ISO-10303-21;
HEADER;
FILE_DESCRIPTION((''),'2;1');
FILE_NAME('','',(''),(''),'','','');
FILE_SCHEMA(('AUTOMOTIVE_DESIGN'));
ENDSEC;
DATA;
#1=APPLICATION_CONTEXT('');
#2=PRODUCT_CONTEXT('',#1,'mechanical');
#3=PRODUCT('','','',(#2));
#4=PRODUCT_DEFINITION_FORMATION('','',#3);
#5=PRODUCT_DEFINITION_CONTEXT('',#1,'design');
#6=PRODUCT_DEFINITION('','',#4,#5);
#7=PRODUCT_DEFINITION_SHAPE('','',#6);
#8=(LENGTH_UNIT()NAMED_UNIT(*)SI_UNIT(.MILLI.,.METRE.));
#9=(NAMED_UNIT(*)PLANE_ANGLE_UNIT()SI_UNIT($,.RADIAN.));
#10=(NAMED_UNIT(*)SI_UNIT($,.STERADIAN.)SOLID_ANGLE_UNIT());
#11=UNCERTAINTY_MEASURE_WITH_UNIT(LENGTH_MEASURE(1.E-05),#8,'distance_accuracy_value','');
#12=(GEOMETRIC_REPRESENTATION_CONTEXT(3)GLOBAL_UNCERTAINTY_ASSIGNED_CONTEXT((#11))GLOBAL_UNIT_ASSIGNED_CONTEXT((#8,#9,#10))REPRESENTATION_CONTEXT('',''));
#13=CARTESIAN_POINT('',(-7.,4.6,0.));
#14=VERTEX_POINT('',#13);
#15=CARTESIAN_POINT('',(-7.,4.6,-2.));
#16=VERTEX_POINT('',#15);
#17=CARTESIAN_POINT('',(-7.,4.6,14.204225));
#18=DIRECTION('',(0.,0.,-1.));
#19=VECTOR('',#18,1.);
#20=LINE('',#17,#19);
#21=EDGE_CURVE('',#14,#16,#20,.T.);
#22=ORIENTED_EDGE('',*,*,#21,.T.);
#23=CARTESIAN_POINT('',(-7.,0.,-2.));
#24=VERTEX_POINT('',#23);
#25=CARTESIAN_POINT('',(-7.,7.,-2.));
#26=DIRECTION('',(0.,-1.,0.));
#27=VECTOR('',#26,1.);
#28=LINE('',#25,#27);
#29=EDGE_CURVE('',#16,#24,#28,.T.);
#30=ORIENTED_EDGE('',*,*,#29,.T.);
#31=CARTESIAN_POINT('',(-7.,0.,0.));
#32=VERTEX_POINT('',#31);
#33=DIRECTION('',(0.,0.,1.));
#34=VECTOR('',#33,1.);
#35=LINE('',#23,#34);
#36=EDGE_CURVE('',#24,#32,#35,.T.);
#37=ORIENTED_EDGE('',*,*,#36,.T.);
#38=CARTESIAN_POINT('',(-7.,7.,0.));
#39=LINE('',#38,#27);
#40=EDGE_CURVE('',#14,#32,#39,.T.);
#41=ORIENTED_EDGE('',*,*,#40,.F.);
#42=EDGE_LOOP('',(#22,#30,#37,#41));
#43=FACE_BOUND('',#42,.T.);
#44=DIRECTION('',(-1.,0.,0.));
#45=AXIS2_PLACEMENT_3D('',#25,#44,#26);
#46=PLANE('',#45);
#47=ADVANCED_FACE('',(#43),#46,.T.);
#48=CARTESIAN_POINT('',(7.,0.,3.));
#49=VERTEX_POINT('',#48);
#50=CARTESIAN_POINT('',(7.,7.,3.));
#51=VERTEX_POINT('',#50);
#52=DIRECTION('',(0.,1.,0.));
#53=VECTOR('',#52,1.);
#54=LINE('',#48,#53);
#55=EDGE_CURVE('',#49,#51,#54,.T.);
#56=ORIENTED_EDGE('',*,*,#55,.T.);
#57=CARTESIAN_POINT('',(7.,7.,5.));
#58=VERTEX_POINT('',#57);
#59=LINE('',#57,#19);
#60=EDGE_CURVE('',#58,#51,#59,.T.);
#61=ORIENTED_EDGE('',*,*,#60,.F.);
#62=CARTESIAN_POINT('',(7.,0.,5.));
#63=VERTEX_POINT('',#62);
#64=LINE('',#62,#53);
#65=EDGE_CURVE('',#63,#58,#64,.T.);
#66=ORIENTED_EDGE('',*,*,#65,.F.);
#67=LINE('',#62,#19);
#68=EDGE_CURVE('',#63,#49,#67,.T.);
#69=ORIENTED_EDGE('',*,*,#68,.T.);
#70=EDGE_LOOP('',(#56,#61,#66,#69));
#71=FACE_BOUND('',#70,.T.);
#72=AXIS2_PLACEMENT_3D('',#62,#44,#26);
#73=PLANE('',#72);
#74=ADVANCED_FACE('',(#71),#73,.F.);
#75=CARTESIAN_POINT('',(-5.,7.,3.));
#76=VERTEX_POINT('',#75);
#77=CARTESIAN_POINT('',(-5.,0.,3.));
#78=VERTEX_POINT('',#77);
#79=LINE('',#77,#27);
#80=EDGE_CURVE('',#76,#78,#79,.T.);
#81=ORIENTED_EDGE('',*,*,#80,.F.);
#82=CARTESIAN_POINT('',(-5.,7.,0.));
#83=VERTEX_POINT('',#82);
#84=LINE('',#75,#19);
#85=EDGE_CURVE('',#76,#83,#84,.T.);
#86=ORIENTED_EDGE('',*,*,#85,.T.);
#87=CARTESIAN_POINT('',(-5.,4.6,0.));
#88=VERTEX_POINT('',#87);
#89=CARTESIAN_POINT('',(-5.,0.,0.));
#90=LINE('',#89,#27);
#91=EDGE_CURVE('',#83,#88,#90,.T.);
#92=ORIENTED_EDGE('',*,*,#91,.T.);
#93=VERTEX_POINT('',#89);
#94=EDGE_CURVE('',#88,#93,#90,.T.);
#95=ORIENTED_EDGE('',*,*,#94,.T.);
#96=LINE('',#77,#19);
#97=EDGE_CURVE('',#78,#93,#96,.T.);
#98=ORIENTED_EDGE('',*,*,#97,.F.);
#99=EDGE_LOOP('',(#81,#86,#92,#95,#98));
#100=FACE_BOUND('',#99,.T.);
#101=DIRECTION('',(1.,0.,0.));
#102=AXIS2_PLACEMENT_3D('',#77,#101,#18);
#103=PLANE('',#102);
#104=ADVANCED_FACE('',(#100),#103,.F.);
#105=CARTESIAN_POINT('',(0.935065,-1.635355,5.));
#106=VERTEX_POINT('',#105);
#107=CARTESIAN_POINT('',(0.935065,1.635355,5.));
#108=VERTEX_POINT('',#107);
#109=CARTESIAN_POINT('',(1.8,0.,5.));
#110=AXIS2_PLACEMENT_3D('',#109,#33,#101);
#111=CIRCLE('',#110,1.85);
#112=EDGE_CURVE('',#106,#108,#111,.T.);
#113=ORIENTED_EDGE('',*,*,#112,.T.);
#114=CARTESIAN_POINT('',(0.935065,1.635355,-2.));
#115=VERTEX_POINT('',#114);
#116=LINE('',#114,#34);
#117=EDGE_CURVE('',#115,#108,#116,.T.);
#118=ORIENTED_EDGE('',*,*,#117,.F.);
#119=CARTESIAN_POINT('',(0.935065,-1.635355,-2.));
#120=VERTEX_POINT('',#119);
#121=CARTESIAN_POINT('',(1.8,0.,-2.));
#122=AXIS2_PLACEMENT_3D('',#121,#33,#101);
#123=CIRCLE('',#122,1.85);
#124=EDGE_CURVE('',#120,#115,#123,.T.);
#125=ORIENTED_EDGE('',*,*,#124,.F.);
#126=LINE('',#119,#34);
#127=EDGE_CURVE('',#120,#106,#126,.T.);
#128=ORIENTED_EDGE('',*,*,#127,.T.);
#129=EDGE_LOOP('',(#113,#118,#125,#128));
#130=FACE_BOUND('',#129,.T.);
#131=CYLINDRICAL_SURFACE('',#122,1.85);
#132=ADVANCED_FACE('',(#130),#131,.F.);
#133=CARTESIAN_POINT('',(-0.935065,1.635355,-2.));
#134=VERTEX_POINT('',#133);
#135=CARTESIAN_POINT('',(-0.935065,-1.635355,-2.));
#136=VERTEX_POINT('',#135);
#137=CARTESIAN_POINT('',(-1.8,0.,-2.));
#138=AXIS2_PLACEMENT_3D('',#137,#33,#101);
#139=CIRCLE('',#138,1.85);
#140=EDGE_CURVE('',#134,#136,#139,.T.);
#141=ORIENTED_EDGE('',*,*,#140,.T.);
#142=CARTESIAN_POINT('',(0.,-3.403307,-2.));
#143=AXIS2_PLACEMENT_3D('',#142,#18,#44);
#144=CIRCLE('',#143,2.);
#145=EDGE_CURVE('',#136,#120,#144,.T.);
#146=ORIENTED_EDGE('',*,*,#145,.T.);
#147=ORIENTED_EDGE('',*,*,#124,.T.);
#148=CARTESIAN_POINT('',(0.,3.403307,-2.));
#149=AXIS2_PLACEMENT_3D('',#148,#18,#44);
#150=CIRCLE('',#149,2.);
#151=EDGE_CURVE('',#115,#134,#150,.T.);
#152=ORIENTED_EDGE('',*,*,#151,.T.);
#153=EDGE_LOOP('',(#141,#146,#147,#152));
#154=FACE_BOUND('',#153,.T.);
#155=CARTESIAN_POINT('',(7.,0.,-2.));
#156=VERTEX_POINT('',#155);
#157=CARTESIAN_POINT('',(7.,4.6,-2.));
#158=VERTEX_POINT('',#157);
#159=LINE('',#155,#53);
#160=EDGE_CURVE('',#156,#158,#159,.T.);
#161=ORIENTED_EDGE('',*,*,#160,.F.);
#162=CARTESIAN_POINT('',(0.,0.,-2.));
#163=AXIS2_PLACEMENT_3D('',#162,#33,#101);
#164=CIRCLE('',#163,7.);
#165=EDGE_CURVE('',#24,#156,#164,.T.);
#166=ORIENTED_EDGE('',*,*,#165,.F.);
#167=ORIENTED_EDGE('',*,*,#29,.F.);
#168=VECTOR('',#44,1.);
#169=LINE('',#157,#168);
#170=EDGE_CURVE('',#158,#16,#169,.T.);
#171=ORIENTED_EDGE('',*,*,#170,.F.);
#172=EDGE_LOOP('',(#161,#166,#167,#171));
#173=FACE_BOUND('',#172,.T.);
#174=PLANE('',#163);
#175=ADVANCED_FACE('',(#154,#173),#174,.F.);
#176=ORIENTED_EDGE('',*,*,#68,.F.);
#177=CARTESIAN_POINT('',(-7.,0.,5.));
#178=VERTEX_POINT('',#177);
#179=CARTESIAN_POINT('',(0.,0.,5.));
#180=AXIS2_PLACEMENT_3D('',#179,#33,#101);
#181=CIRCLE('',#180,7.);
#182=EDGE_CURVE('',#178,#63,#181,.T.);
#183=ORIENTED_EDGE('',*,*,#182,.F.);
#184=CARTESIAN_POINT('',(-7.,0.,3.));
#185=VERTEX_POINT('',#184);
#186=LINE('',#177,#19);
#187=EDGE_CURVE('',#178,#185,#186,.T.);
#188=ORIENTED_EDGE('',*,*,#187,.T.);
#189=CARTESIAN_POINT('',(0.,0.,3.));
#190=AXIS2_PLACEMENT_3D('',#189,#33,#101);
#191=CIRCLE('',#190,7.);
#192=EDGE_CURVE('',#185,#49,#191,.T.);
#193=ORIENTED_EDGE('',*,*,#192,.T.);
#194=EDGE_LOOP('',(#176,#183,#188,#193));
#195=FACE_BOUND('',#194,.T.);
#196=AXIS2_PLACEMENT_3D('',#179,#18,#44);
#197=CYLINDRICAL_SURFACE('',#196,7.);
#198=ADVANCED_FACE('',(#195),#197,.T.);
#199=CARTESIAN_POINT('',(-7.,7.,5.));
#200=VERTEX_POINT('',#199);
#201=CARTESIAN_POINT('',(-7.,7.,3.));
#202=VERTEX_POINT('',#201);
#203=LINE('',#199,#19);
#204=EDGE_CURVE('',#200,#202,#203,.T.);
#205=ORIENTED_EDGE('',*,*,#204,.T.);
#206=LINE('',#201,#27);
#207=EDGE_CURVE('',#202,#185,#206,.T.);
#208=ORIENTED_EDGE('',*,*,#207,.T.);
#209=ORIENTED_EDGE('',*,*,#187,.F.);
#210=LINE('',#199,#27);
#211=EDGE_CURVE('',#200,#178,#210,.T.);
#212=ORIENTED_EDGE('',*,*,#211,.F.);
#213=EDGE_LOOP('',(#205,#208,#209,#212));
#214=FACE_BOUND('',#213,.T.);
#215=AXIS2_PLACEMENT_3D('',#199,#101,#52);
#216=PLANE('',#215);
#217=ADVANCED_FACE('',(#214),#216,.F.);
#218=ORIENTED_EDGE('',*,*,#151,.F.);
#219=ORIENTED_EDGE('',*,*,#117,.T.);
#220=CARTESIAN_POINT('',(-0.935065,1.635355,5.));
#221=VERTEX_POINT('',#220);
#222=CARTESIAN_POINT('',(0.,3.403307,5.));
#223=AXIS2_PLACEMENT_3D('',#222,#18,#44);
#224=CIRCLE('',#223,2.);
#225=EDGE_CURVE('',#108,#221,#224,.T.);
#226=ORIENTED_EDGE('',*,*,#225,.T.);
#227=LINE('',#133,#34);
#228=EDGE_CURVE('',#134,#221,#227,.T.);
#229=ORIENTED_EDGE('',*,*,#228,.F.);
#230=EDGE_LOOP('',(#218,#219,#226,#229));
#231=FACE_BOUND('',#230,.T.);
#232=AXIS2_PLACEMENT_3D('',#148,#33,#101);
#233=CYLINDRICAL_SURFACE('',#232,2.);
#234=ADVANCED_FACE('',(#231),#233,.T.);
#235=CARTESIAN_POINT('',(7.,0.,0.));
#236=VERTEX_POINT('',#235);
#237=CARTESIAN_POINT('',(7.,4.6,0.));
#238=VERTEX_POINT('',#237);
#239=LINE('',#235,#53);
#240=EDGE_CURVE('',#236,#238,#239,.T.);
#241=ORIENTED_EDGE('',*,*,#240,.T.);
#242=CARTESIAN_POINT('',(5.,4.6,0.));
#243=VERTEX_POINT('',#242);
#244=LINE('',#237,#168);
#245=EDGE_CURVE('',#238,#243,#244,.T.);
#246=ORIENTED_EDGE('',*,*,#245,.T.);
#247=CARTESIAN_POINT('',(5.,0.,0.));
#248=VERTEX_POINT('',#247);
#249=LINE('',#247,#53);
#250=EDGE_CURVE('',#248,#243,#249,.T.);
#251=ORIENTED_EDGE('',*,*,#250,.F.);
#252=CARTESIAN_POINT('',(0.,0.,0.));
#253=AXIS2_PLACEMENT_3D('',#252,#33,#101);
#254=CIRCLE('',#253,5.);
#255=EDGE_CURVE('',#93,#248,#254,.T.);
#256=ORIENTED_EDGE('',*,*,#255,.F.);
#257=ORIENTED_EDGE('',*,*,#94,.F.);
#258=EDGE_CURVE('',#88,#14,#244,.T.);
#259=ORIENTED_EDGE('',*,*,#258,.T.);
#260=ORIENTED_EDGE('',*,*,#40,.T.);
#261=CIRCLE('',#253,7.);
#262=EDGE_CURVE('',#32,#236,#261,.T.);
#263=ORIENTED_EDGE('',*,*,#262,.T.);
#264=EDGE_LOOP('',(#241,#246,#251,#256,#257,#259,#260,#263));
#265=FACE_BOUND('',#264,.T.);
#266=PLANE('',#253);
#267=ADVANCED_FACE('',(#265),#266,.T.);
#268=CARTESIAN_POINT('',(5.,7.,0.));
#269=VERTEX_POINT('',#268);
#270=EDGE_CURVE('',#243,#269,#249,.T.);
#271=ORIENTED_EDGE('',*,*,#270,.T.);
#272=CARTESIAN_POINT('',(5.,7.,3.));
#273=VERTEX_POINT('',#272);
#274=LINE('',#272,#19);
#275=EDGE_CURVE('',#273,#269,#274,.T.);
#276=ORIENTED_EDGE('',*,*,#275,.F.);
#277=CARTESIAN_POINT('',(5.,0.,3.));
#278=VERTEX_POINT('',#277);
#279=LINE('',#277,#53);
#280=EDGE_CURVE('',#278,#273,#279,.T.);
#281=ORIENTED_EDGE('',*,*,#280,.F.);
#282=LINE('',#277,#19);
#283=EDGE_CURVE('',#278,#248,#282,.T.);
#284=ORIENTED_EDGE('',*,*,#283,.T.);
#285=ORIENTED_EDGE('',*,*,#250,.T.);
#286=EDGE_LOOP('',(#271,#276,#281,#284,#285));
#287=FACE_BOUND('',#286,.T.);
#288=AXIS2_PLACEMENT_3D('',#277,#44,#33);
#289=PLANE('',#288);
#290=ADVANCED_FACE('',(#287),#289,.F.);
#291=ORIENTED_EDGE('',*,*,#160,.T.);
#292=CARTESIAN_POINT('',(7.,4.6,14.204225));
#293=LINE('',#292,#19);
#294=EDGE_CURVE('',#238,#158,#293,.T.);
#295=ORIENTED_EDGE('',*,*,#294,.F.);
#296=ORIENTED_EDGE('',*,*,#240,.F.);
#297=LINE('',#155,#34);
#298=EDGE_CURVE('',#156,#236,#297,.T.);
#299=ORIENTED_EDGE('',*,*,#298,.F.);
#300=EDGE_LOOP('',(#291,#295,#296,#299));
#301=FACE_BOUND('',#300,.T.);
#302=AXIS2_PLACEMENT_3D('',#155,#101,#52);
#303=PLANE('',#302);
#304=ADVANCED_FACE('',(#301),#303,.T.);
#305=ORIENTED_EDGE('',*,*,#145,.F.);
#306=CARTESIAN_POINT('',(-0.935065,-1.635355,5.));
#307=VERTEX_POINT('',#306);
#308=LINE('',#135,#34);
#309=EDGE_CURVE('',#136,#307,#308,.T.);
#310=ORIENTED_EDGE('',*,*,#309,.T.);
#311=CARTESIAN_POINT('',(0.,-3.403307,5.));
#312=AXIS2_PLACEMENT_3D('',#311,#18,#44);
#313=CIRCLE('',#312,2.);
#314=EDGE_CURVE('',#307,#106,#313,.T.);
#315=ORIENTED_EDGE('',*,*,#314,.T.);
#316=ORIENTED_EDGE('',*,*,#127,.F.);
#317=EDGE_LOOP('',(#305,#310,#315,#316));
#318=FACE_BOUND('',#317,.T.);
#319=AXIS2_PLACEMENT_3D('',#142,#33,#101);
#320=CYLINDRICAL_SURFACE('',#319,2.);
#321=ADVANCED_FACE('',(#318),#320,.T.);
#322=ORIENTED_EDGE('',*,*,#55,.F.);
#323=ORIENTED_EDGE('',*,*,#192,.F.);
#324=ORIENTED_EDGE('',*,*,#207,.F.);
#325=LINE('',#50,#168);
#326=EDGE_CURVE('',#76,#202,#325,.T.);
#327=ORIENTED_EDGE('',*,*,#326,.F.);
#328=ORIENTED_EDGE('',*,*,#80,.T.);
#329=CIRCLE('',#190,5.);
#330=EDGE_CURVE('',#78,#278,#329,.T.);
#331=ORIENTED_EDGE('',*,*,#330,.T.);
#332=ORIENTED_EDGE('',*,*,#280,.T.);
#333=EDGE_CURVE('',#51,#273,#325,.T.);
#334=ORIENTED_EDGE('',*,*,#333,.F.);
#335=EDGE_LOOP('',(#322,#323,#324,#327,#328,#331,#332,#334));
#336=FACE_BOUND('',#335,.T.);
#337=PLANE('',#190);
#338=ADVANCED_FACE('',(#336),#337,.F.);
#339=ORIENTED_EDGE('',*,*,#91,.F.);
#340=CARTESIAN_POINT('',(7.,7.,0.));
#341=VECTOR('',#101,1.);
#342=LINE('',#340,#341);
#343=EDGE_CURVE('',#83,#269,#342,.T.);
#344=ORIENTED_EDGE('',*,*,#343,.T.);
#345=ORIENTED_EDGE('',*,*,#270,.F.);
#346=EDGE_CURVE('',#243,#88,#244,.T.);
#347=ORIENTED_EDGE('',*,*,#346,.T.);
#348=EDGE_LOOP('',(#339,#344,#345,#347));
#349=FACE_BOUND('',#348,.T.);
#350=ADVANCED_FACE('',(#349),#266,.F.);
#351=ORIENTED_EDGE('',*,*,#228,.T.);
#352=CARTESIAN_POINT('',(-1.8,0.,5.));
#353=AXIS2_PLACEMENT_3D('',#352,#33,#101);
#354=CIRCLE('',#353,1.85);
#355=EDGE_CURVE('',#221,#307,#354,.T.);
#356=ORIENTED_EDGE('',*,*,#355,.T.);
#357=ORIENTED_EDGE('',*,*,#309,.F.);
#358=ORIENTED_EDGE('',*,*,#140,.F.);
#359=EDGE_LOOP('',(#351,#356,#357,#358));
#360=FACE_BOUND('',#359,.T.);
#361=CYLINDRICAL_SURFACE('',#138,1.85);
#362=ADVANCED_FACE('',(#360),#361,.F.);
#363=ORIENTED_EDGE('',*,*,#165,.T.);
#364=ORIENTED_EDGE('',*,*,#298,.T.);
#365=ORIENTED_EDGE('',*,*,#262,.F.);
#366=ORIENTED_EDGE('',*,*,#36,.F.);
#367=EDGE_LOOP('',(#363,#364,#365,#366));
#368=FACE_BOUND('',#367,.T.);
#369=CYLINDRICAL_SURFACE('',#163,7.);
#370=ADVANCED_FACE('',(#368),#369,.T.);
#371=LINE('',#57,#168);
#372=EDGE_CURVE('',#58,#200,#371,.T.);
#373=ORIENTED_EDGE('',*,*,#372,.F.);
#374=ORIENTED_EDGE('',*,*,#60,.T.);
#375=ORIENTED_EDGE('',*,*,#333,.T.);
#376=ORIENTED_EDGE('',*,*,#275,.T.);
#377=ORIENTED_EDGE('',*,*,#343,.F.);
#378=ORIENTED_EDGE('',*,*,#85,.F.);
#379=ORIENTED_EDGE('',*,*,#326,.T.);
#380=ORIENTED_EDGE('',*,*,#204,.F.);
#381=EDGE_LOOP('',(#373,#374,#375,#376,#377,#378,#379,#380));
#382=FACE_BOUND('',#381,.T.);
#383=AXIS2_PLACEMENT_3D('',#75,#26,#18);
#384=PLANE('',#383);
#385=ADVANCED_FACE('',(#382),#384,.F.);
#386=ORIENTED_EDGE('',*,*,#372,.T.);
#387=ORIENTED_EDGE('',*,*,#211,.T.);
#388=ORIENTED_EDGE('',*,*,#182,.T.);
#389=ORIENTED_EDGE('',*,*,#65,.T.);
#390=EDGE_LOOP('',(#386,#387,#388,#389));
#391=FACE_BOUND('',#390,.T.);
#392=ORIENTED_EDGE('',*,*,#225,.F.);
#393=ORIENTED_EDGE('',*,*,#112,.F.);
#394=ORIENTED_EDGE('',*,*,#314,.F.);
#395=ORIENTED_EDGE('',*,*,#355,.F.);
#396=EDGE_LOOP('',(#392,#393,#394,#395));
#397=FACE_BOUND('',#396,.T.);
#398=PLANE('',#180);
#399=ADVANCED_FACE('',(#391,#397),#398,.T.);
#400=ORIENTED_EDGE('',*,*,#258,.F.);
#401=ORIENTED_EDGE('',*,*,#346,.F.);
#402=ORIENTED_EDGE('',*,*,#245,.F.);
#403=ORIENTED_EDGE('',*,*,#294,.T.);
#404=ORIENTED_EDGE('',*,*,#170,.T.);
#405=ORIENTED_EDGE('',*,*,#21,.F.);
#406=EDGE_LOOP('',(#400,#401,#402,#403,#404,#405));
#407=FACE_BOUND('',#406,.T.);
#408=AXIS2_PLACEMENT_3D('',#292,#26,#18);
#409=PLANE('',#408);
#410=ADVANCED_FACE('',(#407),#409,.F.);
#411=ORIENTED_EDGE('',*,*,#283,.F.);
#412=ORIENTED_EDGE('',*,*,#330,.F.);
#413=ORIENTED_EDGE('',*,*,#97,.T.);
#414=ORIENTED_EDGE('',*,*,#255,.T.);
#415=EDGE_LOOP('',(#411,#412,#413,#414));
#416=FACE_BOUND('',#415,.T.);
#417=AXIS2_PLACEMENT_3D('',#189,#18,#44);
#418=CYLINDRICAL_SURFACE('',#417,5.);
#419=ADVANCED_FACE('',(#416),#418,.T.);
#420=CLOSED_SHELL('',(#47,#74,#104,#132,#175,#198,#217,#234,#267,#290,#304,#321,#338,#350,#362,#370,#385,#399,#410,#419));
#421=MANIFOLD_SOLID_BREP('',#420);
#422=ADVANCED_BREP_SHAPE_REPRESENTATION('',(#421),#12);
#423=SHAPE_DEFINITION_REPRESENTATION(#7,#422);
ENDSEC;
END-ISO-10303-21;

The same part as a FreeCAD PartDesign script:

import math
import FreeCAD as App
import Part
import Sketcher


def add_polygon(sketch, points):
    """Adds a closed chain of lines whose ends are joined by coincident constraints."""
    first, n = sketch.GeometryCount, len(points)
    for a, b in zip(points, points[1:] + points[:1]):
        sketch.addGeometry(Part.LineSegment(App.Vector(*a, 0), App.Vector(*b, 0)), False)
    for i in range(n):
        sketch.addConstraint(Sketcher.Constraint("Coincident", first + i, 2, first + (i + 1) % n, 1))

doc = App.newDocument("Part")
body = doc.addObject("PartDesign::Body", "Body")

# Sketch on XY plane
sketch1 = body.newObject("Sketcher::SketchObject", "Sketch")
sketch1.AttachmentSupport = (doc.getObject("XY_Plane"), [""])
sketch1.MapMode = "FlatFace"
sketch1.addGeometry([
    Part.LineSegment(App.Vector(-5, 7, 0), App.Vector(-5, 0, 0)),
    Part.ArcOfCircle(Part.Circle(App.Vector(0, 0, 0), App.Vector(0, 0, 1), 5), math.radians(180), math.radians(360)),
    Part.LineSegment(App.Vector(5, 0, 0), App.Vector(5, 7, 0)),
    Part.LineSegment(App.Vector(5, 7, 0), App.Vector(-5, 7, 0)),
], False)
sketch1.addConstraint([
    Sketcher.Constraint("Tangent", 0, 2, 1, 1),
    Sketcher.Constraint("Tangent", 1, 2, 2, 1),
    Sketcher.Constraint("Coincident", 2, 2, 3, 1),
    Sketcher.Constraint("Coincident", 3, 2, 0, 1),
    Sketcher.Constraint("Vertical", 0),
    Sketcher.Constraint("Vertical", 2),
    Sketcher.Constraint("Horizontal", 3),
    Sketcher.Constraint("Coincident", 1, 3, -1, 1),
    Sketcher.Constraint("Radius", 1, 5.0),
    Sketcher.Constraint("DistanceY", 0, 2, 0, 1, 7.0),
])
pad1 = body.newObject("PartDesign::Pad", "Pad")
pad1.Profile = sketch1
pad1.Length = 3

# Sketch on XY plane
sketch2 = body.newObject("Sketcher::SketchObject", "Sketch001")
sketch2.AttachmentSupport = (doc.getObject("XY_Plane"), [""])
sketch2.MapMode = "FlatFace"
sketch2.addGeometry([
    Part.LineSegment(App.Vector(7, 7, 0), App.Vector(-7, 7, 0)),
    Part.LineSegment(App.Vector(-7, 7, 0), App.Vector(-7, 0, 0)),
    Part.ArcOfCircle(Part.Circle(App.Vector(0, 0, 0), App.Vector(0, 0, 1), 7), math.radians(180), math.radians(360)),
    Part.LineSegment(App.Vector(7, 0, 0), App.Vector(7, 7, 0)),
], False)
sketch2.addConstraint([
    Sketcher.Constraint("Coincident", 0, 2, 1, 1),
    Sketcher.Constraint("Tangent", 1, 2, 2, 1),
    Sketcher.Constraint("Tangent", 2, 2, 3, 1),
    Sketcher.Constraint("Coincident", 3, 2, 0, 1),
    Sketcher.Constraint("Horizontal", 0),
    Sketcher.Constraint("Vertical", 1),
    Sketcher.Constraint("Vertical", 3),
    Sketcher.Constraint("Coincident", 2, 3, -1, 1),
    Sketcher.Constraint("Radius", 2, 7.0),
    Sketcher.Constraint("DistanceY", 1, 2, 1, 1, 7.0),
])
pad2 = body.newObject("PartDesign::Pad", "Pad001")
pad2.Profile = sketch2
pad2.Length = 2
pad2.Reversed = True

# Sketch on XY plane
sketch3 = body.newObject("Sketcher::SketchObject", "Sketch002")
sketch3.AttachmentSupport = (doc.getObject("XY_Plane"), [""])
sketch3.MapMode = "FlatFace"
sketch3.AttachmentOffset = App.Placement(App.Vector(0, 0, 5), App.Rotation())
sketch3.addGeometry([
    Part.LineSegment(App.Vector(7, 7, 0), App.Vector(-7, 7, 0)),
    Part.LineSegment(App.Vector(-7, 7, 0), App.Vector(-7, 0, 0)),
    Part.ArcOfCircle(Part.Circle(App.Vector(0, 0, 0), App.Vector(0, 0, 1), 7), math.radians(180), math.radians(360)),
    Part.LineSegment(App.Vector(7, 0, 0), App.Vector(7, 7, 0)),
], False)
sketch3.addConstraint([
    Sketcher.Constraint("Coincident", 0, 2, 1, 1),
    Sketcher.Constraint("Tangent", 1, 2, 2, 1),
    Sketcher.Constraint("Tangent", 2, 2, 3, 1),
    Sketcher.Constraint("Coincident", 3, 2, 0, 1),
    Sketcher.Constraint("Horizontal", 0),
    Sketcher.Constraint("Vertical", 1),
    Sketcher.Constraint("Vertical", 3),
    Sketcher.Constraint("Coincident", 2, 3, -1, 1),
    Sketcher.Constraint("Radius", 2, 7.0),
    Sketcher.Constraint("DistanceY", 1, 2, 1, 1, 7.0),
])
pad3 = body.newObject("PartDesign::Pad", "Pad002")
pad3.Profile = sketch3
pad3.Length = 2
pad3.Reversed = True

# Sketch on XY plane
sketch4 = body.newObject("Sketcher::SketchObject", "Sketch003")
sketch4.AttachmentSupport = (doc.getObject("XY_Plane"), [""])
sketch4.MapMode = "FlatFace"
sketch4.addGeometry([
    Part.ArcOfCircle(Part.Circle(App.Vector(1.8, 0, 0), App.Vector(0, 0, 1), 1.85), math.radians(-117.874243), math.radians(117.874243)),
    Part.ArcOfCircle(Part.Circle(App.Vector(0, 3.403307, 0), App.Vector(0, 0, 1), 2), math.radians(-117.874243), math.radians(-62.125757)),
    Part.ArcOfCircle(Part.Circle(App.Vector(-1.8, 0, 0), App.Vector(0, 0, 1), 1.85), math.radians(62.125757), math.radians(297.874243)),
    Part.ArcOfCircle(Part.Circle(App.Vector(0, -3.403307, 0), App.Vector(0, 0, 1), 2), math.radians(62.125757), math.radians(117.874243)),
], False)
sketch4.addConstraint([
    Sketcher.Constraint("Tangent", 0, 2, 1, 2),
    Sketcher.Constraint("Tangent", 1, 1, 2, 1),
    Sketcher.Constraint("Tangent", 2, 2, 3, 2),
    Sketcher.Constraint("Tangent", 3, 1, 0, 1),
    Sketcher.Constraint("Equal", 0, 2),
    Sketcher.Constraint("Equal", 1, 3),
    Sketcher.Constraint("Symmetric", 0, 3, 2, 3, -1, 1),
    Sketcher.Constraint("PointOnObject", 0, 3, -1),
    Sketcher.Constraint("Radius", 1, 2.0),
    Sketcher.Constraint("Radius", 0, 1.85),
    Sketcher.Constraint("DistanceX", -1, 1, 0, 3, 1.8),
])
pocket1 = body.newObject("PartDesign::Pocket", "Pocket")
pocket1.Profile = sketch4
pocket1.Type = "ThroughAll"
pocket1.Midplane = True

# Sketch on XY plane
sketch5 = body.newObject("Sketcher::SketchObject", "Sketch004")
sketch5.AttachmentSupport = (doc.getObject("XY_Plane"), [""])
sketch5.MapMode = "FlatFace"
sketch5.AttachmentOffset = App.Placement(App.Vector(0, 0, -2), App.Rotation())
add_polygon(sketch5, [(7, 7), (7, 4.6), (-7, 4.6), (-7, 7)])  # lines 0-3
sketch5.addConstraint([
    Sketcher.Constraint("Vertical", 0),
    Sketcher.Constraint("Horizontal", 1),
    Sketcher.Constraint("Vertical", 2),
    Sketcher.Constraint("Horizontal", 3),
    Sketcher.Constraint("DistanceX", 1, 2, 1, 1, 14.0),
    Sketcher.Constraint("DistanceY", 0, 2, 0, 1, 2.4),
    Sketcher.Constraint("DistanceX", -1, 1, 0, 2, 7.0),
    Sketcher.Constraint("DistanceY", -1, 1, 2, 2, 7.0),
])
pocket2 = body.newObject("PartDesign::Pocket", "Pocket001")
pocket2.Profile = sketch5
pocket2.Length = 2
pocket2.Reversed = True

doc.recompute()
